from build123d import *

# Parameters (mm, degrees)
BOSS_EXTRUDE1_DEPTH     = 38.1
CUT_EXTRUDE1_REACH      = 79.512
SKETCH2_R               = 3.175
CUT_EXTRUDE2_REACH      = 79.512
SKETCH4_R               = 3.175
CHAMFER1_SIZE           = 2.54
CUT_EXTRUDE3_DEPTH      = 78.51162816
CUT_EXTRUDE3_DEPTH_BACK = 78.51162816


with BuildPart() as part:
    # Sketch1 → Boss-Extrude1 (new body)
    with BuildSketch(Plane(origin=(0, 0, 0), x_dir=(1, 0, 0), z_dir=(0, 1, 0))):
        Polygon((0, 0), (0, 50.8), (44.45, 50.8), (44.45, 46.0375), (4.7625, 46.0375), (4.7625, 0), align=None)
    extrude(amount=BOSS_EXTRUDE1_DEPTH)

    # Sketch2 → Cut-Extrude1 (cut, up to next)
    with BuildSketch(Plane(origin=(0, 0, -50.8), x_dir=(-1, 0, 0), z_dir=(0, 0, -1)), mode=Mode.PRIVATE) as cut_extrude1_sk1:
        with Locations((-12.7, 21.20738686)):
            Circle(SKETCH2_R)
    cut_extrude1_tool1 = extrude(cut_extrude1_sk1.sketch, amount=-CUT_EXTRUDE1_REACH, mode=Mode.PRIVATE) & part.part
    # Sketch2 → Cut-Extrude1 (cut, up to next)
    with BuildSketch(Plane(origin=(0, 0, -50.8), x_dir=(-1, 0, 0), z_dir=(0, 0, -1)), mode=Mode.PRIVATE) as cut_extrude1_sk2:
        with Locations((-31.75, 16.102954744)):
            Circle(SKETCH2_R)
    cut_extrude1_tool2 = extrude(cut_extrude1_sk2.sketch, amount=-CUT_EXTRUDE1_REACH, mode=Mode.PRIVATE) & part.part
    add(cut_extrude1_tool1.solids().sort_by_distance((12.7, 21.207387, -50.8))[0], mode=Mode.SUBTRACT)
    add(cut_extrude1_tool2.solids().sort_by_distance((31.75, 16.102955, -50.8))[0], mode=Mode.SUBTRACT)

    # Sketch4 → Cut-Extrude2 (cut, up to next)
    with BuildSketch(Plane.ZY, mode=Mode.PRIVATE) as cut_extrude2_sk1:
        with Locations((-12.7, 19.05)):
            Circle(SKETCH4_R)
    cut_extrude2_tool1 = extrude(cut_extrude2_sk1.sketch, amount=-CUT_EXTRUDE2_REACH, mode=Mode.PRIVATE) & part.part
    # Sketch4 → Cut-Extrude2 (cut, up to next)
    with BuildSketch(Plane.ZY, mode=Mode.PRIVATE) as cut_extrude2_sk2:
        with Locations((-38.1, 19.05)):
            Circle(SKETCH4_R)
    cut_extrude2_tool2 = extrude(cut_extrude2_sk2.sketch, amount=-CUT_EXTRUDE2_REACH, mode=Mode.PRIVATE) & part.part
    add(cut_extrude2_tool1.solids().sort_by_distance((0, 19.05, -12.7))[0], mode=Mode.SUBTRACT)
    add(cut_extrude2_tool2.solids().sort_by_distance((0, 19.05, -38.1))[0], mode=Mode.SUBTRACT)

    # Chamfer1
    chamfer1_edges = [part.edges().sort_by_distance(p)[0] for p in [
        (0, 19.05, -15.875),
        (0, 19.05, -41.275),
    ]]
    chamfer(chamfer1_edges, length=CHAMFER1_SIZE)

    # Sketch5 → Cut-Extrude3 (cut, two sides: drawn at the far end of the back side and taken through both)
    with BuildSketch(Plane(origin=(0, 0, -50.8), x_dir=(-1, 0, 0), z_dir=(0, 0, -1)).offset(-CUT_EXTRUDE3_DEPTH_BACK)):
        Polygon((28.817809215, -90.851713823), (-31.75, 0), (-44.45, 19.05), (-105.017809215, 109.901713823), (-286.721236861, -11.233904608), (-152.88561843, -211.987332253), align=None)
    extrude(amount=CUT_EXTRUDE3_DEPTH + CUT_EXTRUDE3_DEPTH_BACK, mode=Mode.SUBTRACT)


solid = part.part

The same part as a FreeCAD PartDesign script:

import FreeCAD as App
import Part
import Sketcher
Q = App.Units.Quantity


def edges_at(feature, points):
    """Names of the edges that pass closest to the given points."""
    edges = feature.Shape.Edges
    near = lambda p: min(range(len(edges)), key=lambda i: edges[i].distToShape(Part.Vertex(*p))[0])
    return sorted({f"Edge{near(p) + 1}" for p in points})

doc = App.newDocument("Part")
params = doc.addObject("Spreadsheet::Sheet", "Params")
for row, (alias, value) in enumerate([
    ("sketch1_height", "2 in"),
    ("sketch1_width", "1.75 in"),
    ("sketch1_width2", "0.1875 in"),
    ("pad1_length", "1.5 in"),
    ("sketch2_diameter", "0.25 in"),
    ("sketch3_diameter", "0.25 in"),
    ("sketch4_diameter", "0.25 in"),
    ("sketch5_diameter", "0.25 in"),
    ("chamfer_size", "0.1 in"),
], start=1):
    params.set(f"A{row}", alias)
    params.set(f"B{row}", "=" + value)
    params.setAlias(f"B{row}", alias)

body = doc.addObject("PartDesign::Body", "Body")

# Sketch on XZ plane
sketch1 = doc.addObject("Sketcher::SketchObject", "Sketch")
body.addObject(sketch1)
sketch1.AttachmentSupport = (doc.XZ_Plane, [""])
sketch1.MapMode = "FlatFace"
sketch1.addGeometry(Part.LineSegment(App.Vector(0, -50.8, 0), App.Vector(0, 0, 0)), False)
sketch1.addGeometry(Part.LineSegment(App.Vector(0, 0, 0), App.Vector(4.7625, 0, 0)), False)
sketch1.addGeometry(Part.LineSegment(App.Vector(4.7625, 0, 0), App.Vector(4.7625, -46.0375, 0)), False)
sketch1.addGeometry(Part.LineSegment(App.Vector(4.7625, -46.0375, 0), App.Vector(44.45, -46.0375, 0)), False)
sketch1.addGeometry(Part.LineSegment(App.Vector(44.45, -46.0375, 0), App.Vector(44.45, -50.8, 0)), False)
sketch1.addGeometry(Part.LineSegment(App.Vector(44.45, -50.8, 0), App.Vector(0, -50.8, 0)), False)
sketch1.addConstraint(Sketcher.Constraint("Coincident", 0, 2, 1, 1))
sketch1.addConstraint(Sketcher.Constraint("Coincident", 1, 2, 2, 1))
sketch1.addConstraint(Sketcher.Constraint("Coincident", 2, 2, 3, 1))
sketch1.addConstraint(Sketcher.Constraint("Coincident", 3, 2, 4, 1))
sketch1.addConstraint(Sketcher.Constraint("Coincident", 4, 2, 5, 1))
sketch1.addConstraint(Sketcher.Constraint("Coincident", 5, 2, 0, 1))
sketch1.addConstraint(Sketcher.Constraint("Vertical", 0))
sketch1.addConstraint(Sketcher.Constraint("Horizontal", 1))
sketch1.addConstraint(Sketcher.Constraint("Vertical", 2))
sketch1.addConstraint(Sketcher.Constraint("Horizontal", 3))
sketch1.addConstraint(Sketcher.Constraint("Vertical", 4))
sketch1.addConstraint(Sketcher.Constraint("Horizontal", 5))
sketch1.addConstraint(Sketcher.Constraint("Coincident", 0, 2, -1, 1))
sketch1.addConstraint(Sketcher.Constraint("Equal", 1, 4))
sketch1.addConstraint(Sketcher.Constraint("DistanceY", 0, 1, 0, 2, Q("2 in")))
sketch1.addConstraint(Sketcher.Constraint("DistanceX", 5, 2, 5, 1, Q("1.75 in")))
sketch1.addConstraint(Sketcher.Constraint("DistanceX", 1, 1, 1, 2, Q("0.1875 in")))
sketch1.setExpression("Constraints[14]", "Params.sketch1_height")
sketch1.setExpression("Constraints[15]", "Params.sketch1_width")
sketch1.setExpression("Constraints[16]", "Params.sketch1_width2")
pad1 = doc.addObject("PartDesign::Pad", "Pad")
body.addObject(pad1)
pad1.Profile = sketch1
pad1.setExpression("Length", "Params.pad1_length")
pad1.Reversed = True

# Sketch on XY plane
sketch2 = doc.addObject("Sketcher::SketchObject", "Sketch001")
body.addObject(sketch2)
sketch2.AttachmentSupport = (doc.XY_Plane, [""])
sketch2.MapMode = "FlatFace"
sketch2.AttachmentOffset = App.Placement(App.Vector(0, 0, -2 * 25.4), App.Rotation())
sketch2.addGeometry(Part.Circle(App.Vector(12.7, 21.207387, 0), App.Vector(0, 0, 1), 3.175), False)
sketch2.addConstraint(Sketcher.Constraint("Diameter", 0, Q("0.25 in")))
sketch2.addConstraint(Sketcher.Constraint("DistanceX", -1, 1, 0, 3, Q("0.5 in")))
sketch2.addConstraint(Sketcher.Constraint("DistanceY", -1, 1, 0, 3, Q("21.207387 mm")))
sketch2.setExpression("Constraints[0]", "Params.sketch2_diameter")
pocket1 = doc.addObject("PartDesign::Pocket", "Pocket")
body.addObject(pocket1)
pocket1.Profile = sketch2
pocket1.Type = "UpToFirst"
pocket1.Reversed = True

# Sketch on XY plane
sketch3 = doc.addObject("Sketcher::SketchObject", "Sketch002")
body.addObject(sketch3)
sketch3.AttachmentSupport = (doc.XY_Plane, [""])
sketch3.MapMode = "FlatFace"
sketch3.AttachmentOffset = App.Placement(App.Vector(0, 0, -2 * 25.4), App.Rotation())
sketch3.addGeometry(Part.Circle(App.Vector(31.75, 16.102955, 0), App.Vector(0, 0, 1), 3.175), False)
sketch3.addConstraint(Sketcher.Constraint("Diameter", 0, Q("0.25 in")))
sketch3.addConstraint(Sketcher.Constraint("DistanceX", -1, 1, 0, 3, Q("1.25 in")))
sketch3.addConstraint(Sketcher.Constraint("DistanceY", -1, 1, 0, 3, Q("16.102955 mm")))
sketch3.setExpression("Constraints[0]", "Params.sketch3_diameter")
pocket2 = doc.addObject("PartDesign::Pocket", "Pocket001")
body.addObject(pocket2)
pocket2.Profile = sketch3
pocket2.Type = "UpToFirst"
pocket2.Reversed = True

# Sketch on YZ plane
sketch4 = doc.addObject("Sketcher::SketchObject", "Sketch003")
body.addObject(sketch4)
sketch4.AttachmentSupport = (doc.YZ_Plane, [""])
sketch4.MapMode = "FlatFace"
sketch4.addGeometry(Part.Circle(App.Vector(19.05, -12.7, 0), App.Vector(0, 0, 1), 3.175), False)
sketch4.addConstraint(Sketcher.Constraint("Diameter", 0, Q("0.25 in")))
sketch4.addConstraint(Sketcher.Constraint("DistanceY", 0, 3, -1, 1, Q("0.5 in")))
sketch4.addConstraint(Sketcher.Constraint("DistanceX", -1, 1, 0, 3, Q("0.75 in")))
sketch4.setExpression("Constraints[0]", "Params.sketch4_diameter")
pocket3 = doc.addObject("PartDesign::Pocket", "Pocket002")
body.addObject(pocket3)
pocket3.Profile = sketch4
pocket3.Type = "UpToFirst"
pocket3.Reversed = True

# Sketch on YZ plane
sketch5 = doc.addObject("Sketcher::SketchObject", "Sketch004")
body.addObject(sketch5)
sketch5.AttachmentSupport = (doc.YZ_Plane, [""])
sketch5.MapMode = "FlatFace"
sketch5.addGeometry(Part.Circle(App.Vector(19.05, -38.1, 0), App.Vector(0, 0, 1), 3.175), False)
sketch5.addConstraint(Sketcher.Constraint("Diameter", 0, Q("0.25 in")))
sketch5.addConstraint(Sketcher.Constraint("DistanceY", 0, 3, -1, 1, Q("1.5 in")))
sketch5.addConstraint(Sketcher.Constraint("DistanceX", -1, 1, 0, 3, Q("0.75 in")))
sketch5.setExpression("Constraints[0]", "Params.sketch5_diameter")
pocket4 = doc.addObject("PartDesign::Pocket", "Pocket003")
body.addObject(pocket4)
pocket4.Profile = sketch5
pocket4.Type = "UpToFirst"
pocket4.Reversed = True
doc.recompute()

chamfer = doc.addObject("PartDesign::Chamfer", "Chamfer")
body.addObject(chamfer)
chamfer.Base = (pocket4, edges_at(pocket4, [(0, 19.05, -15.875), (0, 19.05, -41.275)]))
chamfer.setExpression("Size", "Params.chamfer_size")

# Sketch on XY plane
sketch6 = doc.addObject("Sketcher::SketchObject", "Sketch005")
body.addObject(sketch6)
sketch6.AttachmentSupport = (doc.XY_Plane, [""])
sketch6.MapMode = "FlatFace"
sketch6.AttachmentOffset = App.Placement(App.Vector(0, 0, -2 * 25.4), App.Rotation())
sketch6.addGeometry(Part.LineSegment(App.Vector(-28.817809, -90.851714, 0), App.Vector(31.75, 0, 0)), False)
sketch6.addGeometry(Part.LineSegment(App.Vector(31.75, 0, 0), App.Vector(44.45, 19.05, 0)), False)
sketch6.addGeometry(Part.LineSegment(App.Vector(44.45, 19.05, 0), App.Vector(105.017809, 109.901714, 0)), False)
sketch6.addGeometry(Part.LineSegment(App.Vector(105.017809, 109.901714, 0), App.Vector(286.721237, -11.233905, 0)), False)
sketch6.addGeometry(Part.LineSegment(App.Vector(286.721237, -11.233905, 0), App.Vector(152.885618, -211.987332, 0)), False)
sketch6.addGeometry(Part.LineSegment(App.Vector(152.885618, -211.987332, 0), App.Vector(-28.817809, -90.851714, 0)), False)
sketch6.addConstraint(Sketcher.Constraint("Coincident", 0, 2, 1, 1))
sketch6.addConstraint(Sketcher.Constraint("Coincident", 1, 2, 2, 1))
sketch6.addConstraint(Sketcher.Constraint("Coincident", 2, 2, 3, 1))
sketch6.addConstraint(Sketcher.Constraint("Coincident", 3, 2, 4, 1))
sketch6.addConstraint(Sketcher.Constraint("Coincident", 4, 2, 5, 1))
sketch6.addConstraint(Sketcher.Constraint("Coincident", 5, 2, 0, 1))
sketch6.addConstraint(Sketcher.Constraint("PointOnObject", 0, 2, -1))
sketch6.addConstraint(Sketcher.Constraint("Parallel", 0, 1))
sketch6.addConstraint(Sketcher.Constraint("Parallel", 1, 2))
sketch6.addConstraint(Sketcher.Constraint("Perpendicular", 2, 3))
sketch6.addConstraint(Sketcher.Constraint("Perpendicular", 3, 4))
sketch6.addConstraint(Sketcher.Constraint("Perpendicular", 4, 5))
sketch6.addConstraint(Sketcher.Constraint("Equal", 0, 2))
sketch6.addConstraint(Sketcher.Constraint("DistanceX", 0, 2, 1, 2, Q("0.5 in")))
sketch6.addConstraint(Sketcher.Constraint("DistanceX", -1, 1, 0, 2, Q("1.25 in")))
sketch6.addConstraint(Sketcher.Constraint("DistanceY", -1, 1, 1, 2, Q("0.75 in")))
sketch6.addConstraint(Sketcher.Constraint("Distance", 0, Q("109.190171 mm")))
sketch6.addConstraint(Sketcher.Constraint("Distance", 3, Q("218.380342 mm")))
pocket5 = doc.addObject("PartDesign::Pocket", "Pocket004")
body.addObject(pocket5)
pocket5.Profile = sketch6
pocket5.Type = "ThroughAll"
pocket5.Midplane = True

doc.recompute()
